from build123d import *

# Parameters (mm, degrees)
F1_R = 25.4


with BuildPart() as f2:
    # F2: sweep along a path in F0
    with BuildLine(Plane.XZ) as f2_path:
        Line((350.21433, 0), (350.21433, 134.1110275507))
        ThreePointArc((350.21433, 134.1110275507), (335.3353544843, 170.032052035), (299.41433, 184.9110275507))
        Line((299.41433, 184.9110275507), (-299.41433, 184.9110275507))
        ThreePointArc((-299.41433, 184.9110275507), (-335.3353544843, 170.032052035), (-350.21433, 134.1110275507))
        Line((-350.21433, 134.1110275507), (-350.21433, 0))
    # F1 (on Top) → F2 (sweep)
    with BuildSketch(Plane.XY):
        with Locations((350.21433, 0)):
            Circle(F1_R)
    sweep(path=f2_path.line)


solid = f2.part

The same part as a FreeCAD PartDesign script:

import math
import FreeCAD as App
import Part
import Sketcher
from FreeCAD import Vector
Q = App.Units.Quantity

doc = App.newDocument("Part")
body = doc.addObject("PartDesign::Body", "Body")

# Sketch on XY plane
sketch1 = body.newObject("Sketcher::SketchObject", "Sketch")
sketch1.AttachmentSupport = (doc.getObject("XY_Plane"), [""])
sketch1.MapMode = "FlatFace"
sketch1.addGeometry(Part.Circle(Vector(350.21433, 0, 0), Vector(0, 0, 1), 25.4), False)
sketch1.addConstraint(Sketcher.Constraint("PointOnObject", 0, 3, -1))
sketch1.addConstraint(Sketcher.Constraint("Diameter", 0, Q("2 in")))
sketch1.addConstraint(Sketcher.Constraint("DistanceX", -1, 1, 0, 3, Q("350.21433 mm")))

# Sketch on XZ plane
sketch2 = body.newObject("Sketcher::SketchObject", "Sketch001")
sketch2.AttachmentSupport = (doc.getObject("XZ_Plane"), [""])
sketch2.MapMode = "FlatFace"
sketch2.addGeometry(Part.LineSegment(Vector(350.21433, 0, 0), Vector(350.21433, 134.111028, 0)), False)
sketch2.addGeometry(Part.ArcOfCircle(Part.Circle(Vector(299.41433, 134.111028, 0), Vector(0, 0, 1), 50.8), math.radians(0), math.radians(90)), False)
sketch2.addGeometry(Part.LineSegment(Vector(299.41433, 184.911028, 0), Vector(-299.41433, 184.911028, 0)), False)
sketch2.addGeometry(Part.ArcOfCircle(Part.Circle(Vector(-299.41433, 134.111028, 0), Vector(0, 0, 1), 50.8), math.radians(90), math.radians(180)), False)
sketch2.addGeometry(Part.LineSegment(Vector(-350.21433, 134.111028, 0), Vector(-350.21433, 0, 0)), False)
sketch2.addConstraint(Sketcher.Constraint("Tangent", 0, 2, 1, 1))
sketch2.addConstraint(Sketcher.Constraint("Tangent", 1, 2, 2, 1))
sketch2.addConstraint(Sketcher.Constraint("Tangent", 2, 2, 3, 1))
sketch2.addConstraint(Sketcher.Constraint("Tangent", 3, 2, 4, 1))
sketch2.addConstraint(Sketcher.Constraint("Vertical", 0))
sketch2.addConstraint(Sketcher.Constraint("Horizontal", 2))
sketch2.addConstraint(Sketcher.Constraint("Vertical", 4))
sketch2.addConstraint(Sketcher.Constraint("Equal", 1, 3))
sketch2.addConstraint(Sketcher.Constraint("Symmetric", 0, 1, 4, 2, -1, 1))
sketch2.addConstraint(Sketcher.Constraint("PointOnObject", 0, 1, -1))
sketch2.addConstraint(Sketcher.Constraint("Radius", 1, Q("2 in")))
sketch2.addConstraint(Sketcher.Constraint("DistanceX", 2, 2, 2, 1, Q("598.82866 mm")))
sketch2.addConstraint(Sketcher.Constraint("DistanceY", 0, 1, 0, 2, Q("134.111028 mm")))
doc.recompute()

additivepipe = body.newObject("PartDesign::AdditivePipe", "AdditivePipe")
additivepipe.Profile = sketch1
additivepipe.Spine = (sketch2, ["Edge1", "Edge2", "Edge3", "Edge4", "Edge5"])

doc.recompute()
